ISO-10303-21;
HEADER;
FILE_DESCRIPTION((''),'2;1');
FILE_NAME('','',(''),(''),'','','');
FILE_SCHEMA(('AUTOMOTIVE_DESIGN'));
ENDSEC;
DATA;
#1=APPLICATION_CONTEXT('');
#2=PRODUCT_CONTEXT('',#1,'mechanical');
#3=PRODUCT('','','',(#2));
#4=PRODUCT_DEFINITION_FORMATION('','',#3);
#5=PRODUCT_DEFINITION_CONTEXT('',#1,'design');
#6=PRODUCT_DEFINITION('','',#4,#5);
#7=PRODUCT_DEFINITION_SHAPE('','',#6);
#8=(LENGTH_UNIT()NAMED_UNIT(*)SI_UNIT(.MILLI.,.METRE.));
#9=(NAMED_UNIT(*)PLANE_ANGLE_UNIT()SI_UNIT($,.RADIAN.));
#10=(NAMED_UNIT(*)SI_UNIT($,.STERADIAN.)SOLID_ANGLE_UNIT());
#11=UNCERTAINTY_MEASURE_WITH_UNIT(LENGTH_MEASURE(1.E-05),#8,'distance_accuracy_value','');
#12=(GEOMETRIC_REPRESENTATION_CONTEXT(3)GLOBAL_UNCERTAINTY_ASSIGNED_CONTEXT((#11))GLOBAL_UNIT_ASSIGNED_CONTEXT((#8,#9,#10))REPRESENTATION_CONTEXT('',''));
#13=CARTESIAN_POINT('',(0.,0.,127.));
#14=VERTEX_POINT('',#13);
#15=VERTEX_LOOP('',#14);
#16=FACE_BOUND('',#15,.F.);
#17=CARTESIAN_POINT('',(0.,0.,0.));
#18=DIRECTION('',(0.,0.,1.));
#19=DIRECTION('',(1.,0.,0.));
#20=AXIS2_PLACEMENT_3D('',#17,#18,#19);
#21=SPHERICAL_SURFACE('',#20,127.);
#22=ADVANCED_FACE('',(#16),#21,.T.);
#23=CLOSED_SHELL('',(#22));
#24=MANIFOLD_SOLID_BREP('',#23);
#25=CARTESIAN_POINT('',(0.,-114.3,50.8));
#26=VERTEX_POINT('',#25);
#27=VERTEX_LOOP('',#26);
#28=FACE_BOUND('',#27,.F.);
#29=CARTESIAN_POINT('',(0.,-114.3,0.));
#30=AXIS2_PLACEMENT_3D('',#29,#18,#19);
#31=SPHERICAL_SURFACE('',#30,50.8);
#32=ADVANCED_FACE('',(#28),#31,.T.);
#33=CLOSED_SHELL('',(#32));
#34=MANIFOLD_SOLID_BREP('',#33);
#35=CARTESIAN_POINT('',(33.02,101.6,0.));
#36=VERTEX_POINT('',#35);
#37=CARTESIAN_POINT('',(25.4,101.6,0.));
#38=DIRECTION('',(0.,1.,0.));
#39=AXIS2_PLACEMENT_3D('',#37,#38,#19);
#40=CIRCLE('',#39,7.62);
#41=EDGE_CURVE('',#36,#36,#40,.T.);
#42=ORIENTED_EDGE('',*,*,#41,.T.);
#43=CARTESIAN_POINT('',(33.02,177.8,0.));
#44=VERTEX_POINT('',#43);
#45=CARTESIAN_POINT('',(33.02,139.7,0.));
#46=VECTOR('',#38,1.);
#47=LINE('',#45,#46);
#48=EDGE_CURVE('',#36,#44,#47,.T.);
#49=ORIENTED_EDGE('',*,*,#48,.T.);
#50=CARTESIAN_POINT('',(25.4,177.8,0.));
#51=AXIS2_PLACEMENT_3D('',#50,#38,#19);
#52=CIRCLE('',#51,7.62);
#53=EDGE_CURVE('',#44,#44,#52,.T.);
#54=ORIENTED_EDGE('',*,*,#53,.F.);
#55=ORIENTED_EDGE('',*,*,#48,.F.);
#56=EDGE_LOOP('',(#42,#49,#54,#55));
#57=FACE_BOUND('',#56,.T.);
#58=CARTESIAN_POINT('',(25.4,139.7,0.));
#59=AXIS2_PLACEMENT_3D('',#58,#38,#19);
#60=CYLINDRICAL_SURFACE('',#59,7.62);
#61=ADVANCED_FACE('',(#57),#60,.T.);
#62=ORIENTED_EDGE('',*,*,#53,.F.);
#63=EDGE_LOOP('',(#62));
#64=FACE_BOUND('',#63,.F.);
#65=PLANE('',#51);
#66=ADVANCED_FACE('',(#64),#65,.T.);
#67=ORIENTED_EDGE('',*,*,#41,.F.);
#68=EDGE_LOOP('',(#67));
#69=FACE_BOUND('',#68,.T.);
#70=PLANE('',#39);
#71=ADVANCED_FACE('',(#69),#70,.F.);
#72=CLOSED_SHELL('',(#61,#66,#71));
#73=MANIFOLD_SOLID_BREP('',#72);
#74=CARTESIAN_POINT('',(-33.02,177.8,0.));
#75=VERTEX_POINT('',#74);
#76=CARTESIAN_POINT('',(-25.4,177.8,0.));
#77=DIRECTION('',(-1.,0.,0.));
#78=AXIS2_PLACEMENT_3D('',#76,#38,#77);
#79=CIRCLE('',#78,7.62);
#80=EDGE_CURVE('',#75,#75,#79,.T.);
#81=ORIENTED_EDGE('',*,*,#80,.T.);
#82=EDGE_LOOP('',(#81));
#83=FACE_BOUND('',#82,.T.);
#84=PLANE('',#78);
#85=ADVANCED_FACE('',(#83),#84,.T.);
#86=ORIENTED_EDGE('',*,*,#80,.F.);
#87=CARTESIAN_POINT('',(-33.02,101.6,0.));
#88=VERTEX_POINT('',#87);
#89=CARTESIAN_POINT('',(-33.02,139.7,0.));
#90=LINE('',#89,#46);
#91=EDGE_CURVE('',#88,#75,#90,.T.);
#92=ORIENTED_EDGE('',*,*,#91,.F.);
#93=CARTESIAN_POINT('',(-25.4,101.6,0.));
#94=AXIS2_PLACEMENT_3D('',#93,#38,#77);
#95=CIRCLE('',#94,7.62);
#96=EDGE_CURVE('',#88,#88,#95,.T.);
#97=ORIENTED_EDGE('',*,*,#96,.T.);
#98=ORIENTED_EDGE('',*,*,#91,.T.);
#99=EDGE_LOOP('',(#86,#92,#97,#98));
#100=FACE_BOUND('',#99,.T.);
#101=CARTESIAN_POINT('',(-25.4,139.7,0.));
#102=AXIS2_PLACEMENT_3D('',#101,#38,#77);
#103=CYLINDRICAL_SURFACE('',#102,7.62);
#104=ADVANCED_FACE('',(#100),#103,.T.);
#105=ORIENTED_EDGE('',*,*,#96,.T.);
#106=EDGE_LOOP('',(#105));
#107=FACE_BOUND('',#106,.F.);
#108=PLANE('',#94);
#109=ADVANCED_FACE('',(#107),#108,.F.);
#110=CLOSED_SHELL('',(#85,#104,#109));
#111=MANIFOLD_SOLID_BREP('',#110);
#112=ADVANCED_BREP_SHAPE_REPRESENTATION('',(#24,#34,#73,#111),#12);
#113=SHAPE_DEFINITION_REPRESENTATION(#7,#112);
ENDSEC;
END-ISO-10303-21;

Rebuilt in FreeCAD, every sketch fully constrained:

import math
import FreeCAD as App
import Part
import Sketcher
from FreeCAD import Vector
Q = App.Units.Quantity


def add_polygon(sketch, points):
    """Adds a closed chain of lines whose ends are joined by coincident constraints."""
    first, n = sketch.GeometryCount, len(points)
    for a, b in zip(points, points[1:] + points[:1]):
        sketch.addGeometry(Part.LineSegment(App.Vector(*a, 0), App.Vector(*b, 0)), False)
    for i in range(n):
        sketch.addConstraint(Sketcher.Constraint("Coincident", first + i, 2, first + (i + 1) % n, 1))

doc = App.newDocument("Part")
body = doc.addObject("PartDesign::Body", "Body")

sketch1 = body.newObject("Sketcher::SketchObject", "Sketch")
sketch1.AttachmentSupport = (doc.getObject("XZ_Plane"), [""])
sketch1.MapMode = "FlatFace"
sketch1.addGeometry([
    Part.LineSegment(Vector(0, 127, 0), Vector(0, -127, 0)),
    Part.ArcOfCircle(Part.Circle(Vector(0, 0, 0), Vector(0, 0, 1), 127), math.radians(-90), math.radians(90)),
], False)
sketch1.addConstraint([
    Sketcher.Constraint("Coincident", 0, 1, 1, 2),
    Sketcher.Constraint("Coincident", 1, 1, 0, 2),
    Sketcher.Constraint("Vertical", 0),
    Sketcher.Constraint("Coincident", 1, 3, -1, 1),
    Sketcher.Constraint("PointOnObject", 0, 1, -2),
    Sketcher.Constraint("Radius", 1, Q("5 in")),
])
revolution = body.newObject("PartDesign::Revolution", "Revolution")
revolution.Profile = sketch1
revolution.ReferenceAxis = (sketch1, ["V_Axis"])
revolution.Angle = 360
body2 = doc.addObject("PartDesign::Body", "Body001")

sketch2 = body2.newObject("Sketcher::SketchObject", "Sketch001")
sketch2.AttachmentSupport = (doc.getObject("XZ_Plane001"), [""])
sketch2.MapMode = "FlatFace"
sketch2.AttachmentOffset = App.Placement(Vector(0, 0, 4.5 * 25.4), App.Rotation())
sketch2.addGeometry([
    Part.LineSegment(Vector(0, 51, 0), Vector(0, -51, 0)),
    Part.ArcOfCircle(Part.Circle(Vector(0, 0, 0), Vector(0, 0, 1), 51), math.radians(-90), math.radians(90)),
], False)
sketch2.addConstraint([
    Sketcher.Constraint("Coincident", 0, 1, 1, 2),
    Sketcher.Constraint("Coincident", 1, 1, 0, 2),
    Sketcher.Constraint("Vertical", 0),
    Sketcher.Constraint("Coincident", 1, 3, -1, 1),
    Sketcher.Constraint("PointOnObject", 0, 1, -2),
    Sketcher.Constraint("Radius", 1, Q("2 in")),
])
revolution2 = body2.newObject("PartDesign::Revolution", "Revolution001")
revolution2.Profile = sketch2
revolution2.ReferenceAxis = (sketch2, ["V_Axis"])
revolution2.Angle = 360
body3 = doc.addObject("PartDesign::Body", "Body002")

sketch3 = body3.newObject("Sketcher::SketchObject", "Sketch002")
sketch3.AttachmentSupport = (doc.getObject("XY_Plane002"), [""])
sketch3.MapMode = "FlatFace"
add_polygon(sketch3, [(-33, 178), (-33, 102), (-25, 102), (-25, 178)])
sketch3.addGeometry(Part.LineSegment(Vector(-25, 102, 0), Vector(-25, 178, 0)), True)
sketch3.addConstraint([
    Sketcher.Constraint("Vertical", 0),
    Sketcher.Constraint("Horizontal", 1),
    Sketcher.Constraint("Vertical", 2),
    Sketcher.Constraint("Horizontal", 3),
    Sketcher.Constraint("Vertical", 4),
    Sketcher.Constraint("Coincident", 4, 1, 1, 2),
    Sketcher.Constraint("Horizontal", 3, 2, 4, 2),
    Sketcher.Constraint("DistanceY", 0, 2, 0, 1, Q("3 in")),
    Sketcher.Constraint("DistanceX", 1, 1, 1, 2, Q("0.3 in")),
    Sketcher.Constraint("DistanceY", -1, 1, 0, 2, Q("4 in")),
    Sketcher.Constraint("DistanceX", 1, 2, -1, 1, Q("1 in")),
])
revolution3 = body3.newObject("PartDesign::Revolution", "Revolution002")
revolution3.Profile = sketch3
revolution3.ReferenceAxis = (sketch3, ["Axis0"])
revolution3.Angle = 360
body4 = doc.addObject("PartDesign::Body", "Body003")

sketch4 = body4.newObject("Sketcher::SketchObject", "Sketch003")
sketch4.AttachmentSupport = (doc.getObject("XY_Plane003"), [""])
sketch4.MapMode = "FlatFace"
add_polygon(sketch4, [(25, 178), (25, 102), (33, 102), (33, 178)])
sketch4.addGeometry(Part.LineSegment(Vector(25, 102, 0), Vector(25, 178, 0)), True)
sketch4.addConstraint([
    Sketcher.Constraint("Vertical", 0),
    Sketcher.Constraint("Horizontal", 1),
    Sketcher.Constraint("Vertical", 2),
    Sketcher.Constraint("Horizontal", 3),
    Sketcher.Constraint("Vertical", 4),
    Sketcher.Constraint("Coincident", 4, 1, 0, 2),
    Sketcher.Constraint("Horizontal", 2, 2, 4, 2),
    Sketcher.Constraint("DistanceY", 0, 2, 0, 1, Q("3 in")),
    Sketcher.Constraint("DistanceX", 1, 1, 1, 2, Q("0.3 in")),
    Sketcher.Constraint("DistanceX", -1, 1, 0, 2, Q("1 in")),
    Sketcher.Constraint("DistanceY", -1, 1, 0, 2, Q("4 in")),
])
revolution4 = body4.newObject("PartDesign::Revolution", "Revolution003")
revolution4.Profile = sketch4
revolution4.ReferenceAxis = (sketch4, ["Axis0"])
revolution4.Angle = 360

doc.recompute()
